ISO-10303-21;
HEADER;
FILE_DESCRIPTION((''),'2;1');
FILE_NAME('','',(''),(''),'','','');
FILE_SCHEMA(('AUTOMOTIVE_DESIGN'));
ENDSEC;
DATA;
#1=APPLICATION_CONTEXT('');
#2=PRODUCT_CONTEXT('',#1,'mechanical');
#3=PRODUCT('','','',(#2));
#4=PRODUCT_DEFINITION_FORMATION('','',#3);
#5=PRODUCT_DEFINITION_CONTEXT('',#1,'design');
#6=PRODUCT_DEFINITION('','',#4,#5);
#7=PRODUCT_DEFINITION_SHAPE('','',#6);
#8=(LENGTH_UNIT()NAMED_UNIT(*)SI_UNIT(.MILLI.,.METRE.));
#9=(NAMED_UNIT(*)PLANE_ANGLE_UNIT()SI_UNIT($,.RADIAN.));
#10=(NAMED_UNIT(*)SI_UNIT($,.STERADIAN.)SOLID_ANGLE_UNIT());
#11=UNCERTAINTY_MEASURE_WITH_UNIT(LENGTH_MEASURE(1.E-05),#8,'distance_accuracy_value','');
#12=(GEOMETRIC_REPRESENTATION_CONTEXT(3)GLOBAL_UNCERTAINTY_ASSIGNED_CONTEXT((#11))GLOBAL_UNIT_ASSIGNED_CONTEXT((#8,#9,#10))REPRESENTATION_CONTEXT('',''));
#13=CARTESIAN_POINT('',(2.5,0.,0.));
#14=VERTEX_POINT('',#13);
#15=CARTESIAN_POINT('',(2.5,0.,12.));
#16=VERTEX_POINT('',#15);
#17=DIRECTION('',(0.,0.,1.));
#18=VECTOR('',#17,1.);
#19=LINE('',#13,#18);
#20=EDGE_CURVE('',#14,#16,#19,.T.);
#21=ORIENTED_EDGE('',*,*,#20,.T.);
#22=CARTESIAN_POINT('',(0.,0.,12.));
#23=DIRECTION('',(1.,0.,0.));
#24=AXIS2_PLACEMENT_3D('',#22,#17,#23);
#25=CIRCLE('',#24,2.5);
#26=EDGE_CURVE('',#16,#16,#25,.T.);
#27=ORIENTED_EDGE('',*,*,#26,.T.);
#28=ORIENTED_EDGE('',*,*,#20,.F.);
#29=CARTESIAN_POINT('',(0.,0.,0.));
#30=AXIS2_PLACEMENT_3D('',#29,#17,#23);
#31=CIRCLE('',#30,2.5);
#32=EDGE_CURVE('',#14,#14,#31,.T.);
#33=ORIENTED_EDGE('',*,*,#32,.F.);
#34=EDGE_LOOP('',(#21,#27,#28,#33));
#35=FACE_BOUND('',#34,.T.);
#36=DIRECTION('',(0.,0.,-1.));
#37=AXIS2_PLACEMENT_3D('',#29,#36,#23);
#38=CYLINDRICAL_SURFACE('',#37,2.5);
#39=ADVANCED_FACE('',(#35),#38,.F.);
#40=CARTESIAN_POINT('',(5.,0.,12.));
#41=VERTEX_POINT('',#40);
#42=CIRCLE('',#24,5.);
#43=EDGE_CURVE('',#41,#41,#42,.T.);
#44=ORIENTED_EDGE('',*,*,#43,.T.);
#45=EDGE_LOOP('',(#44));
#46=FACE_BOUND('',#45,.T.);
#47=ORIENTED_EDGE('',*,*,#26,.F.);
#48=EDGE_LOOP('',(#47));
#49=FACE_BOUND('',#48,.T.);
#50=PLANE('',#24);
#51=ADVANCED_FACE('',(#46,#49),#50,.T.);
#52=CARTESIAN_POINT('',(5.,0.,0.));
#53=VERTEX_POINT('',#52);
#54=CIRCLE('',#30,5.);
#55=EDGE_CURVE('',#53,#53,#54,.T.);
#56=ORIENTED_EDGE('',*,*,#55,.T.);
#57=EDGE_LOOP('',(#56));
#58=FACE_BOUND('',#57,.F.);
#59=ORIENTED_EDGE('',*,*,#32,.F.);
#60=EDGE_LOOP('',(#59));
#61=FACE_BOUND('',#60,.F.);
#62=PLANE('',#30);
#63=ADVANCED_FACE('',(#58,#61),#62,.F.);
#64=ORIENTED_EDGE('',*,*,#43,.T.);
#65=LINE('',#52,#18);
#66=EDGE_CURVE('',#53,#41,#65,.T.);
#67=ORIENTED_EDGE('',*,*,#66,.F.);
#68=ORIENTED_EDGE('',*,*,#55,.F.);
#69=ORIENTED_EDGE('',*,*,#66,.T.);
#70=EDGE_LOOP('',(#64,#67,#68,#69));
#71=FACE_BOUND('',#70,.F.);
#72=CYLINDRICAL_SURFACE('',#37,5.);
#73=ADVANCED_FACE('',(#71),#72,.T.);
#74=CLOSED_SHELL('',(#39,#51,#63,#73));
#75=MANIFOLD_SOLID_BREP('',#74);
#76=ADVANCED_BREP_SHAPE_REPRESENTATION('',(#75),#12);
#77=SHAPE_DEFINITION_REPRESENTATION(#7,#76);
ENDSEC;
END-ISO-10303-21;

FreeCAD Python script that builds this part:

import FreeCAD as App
import Part
import Sketcher
Q = App.Units.Quantity

doc = App.newDocument("Part")
body = doc.addObject("PartDesign::Body", "Body")

# Sketch on XY plane
sketch1 = body.newObject("Sketcher::SketchObject", "Sketch")
sketch1.AttachmentSupport = (doc.getObject("XY_Plane"), [""])
sketch1.MapMode = "FlatFace"
sketch1.addGeometry(Part.Circle(App.Vector(0, 0, 0), App.Vector(0, 0, 1), 5), False)
sketch1.addGeometry(Part.Circle(App.Vector(0, 0, 0), App.Vector(0, 0, 1), 2.5), False)
sketch1.addConstraint(Sketcher.Constraint("Coincident", 0, 3, -1, 1))
sketch1.addConstraint(Sketcher.Constraint("Coincident", 1, 3, -1, 1))
sketch1.addConstraint(Sketcher.Constraint("Diameter", 0, Q("10 mm")))
sketch1.addConstraint(Sketcher.Constraint("Diameter", 1, Q("5 mm")))
pad1 = body.newObject("PartDesign::Pad", "Pad")
pad1.Profile = sketch1
pad1.Length = 12

doc.recompute()
